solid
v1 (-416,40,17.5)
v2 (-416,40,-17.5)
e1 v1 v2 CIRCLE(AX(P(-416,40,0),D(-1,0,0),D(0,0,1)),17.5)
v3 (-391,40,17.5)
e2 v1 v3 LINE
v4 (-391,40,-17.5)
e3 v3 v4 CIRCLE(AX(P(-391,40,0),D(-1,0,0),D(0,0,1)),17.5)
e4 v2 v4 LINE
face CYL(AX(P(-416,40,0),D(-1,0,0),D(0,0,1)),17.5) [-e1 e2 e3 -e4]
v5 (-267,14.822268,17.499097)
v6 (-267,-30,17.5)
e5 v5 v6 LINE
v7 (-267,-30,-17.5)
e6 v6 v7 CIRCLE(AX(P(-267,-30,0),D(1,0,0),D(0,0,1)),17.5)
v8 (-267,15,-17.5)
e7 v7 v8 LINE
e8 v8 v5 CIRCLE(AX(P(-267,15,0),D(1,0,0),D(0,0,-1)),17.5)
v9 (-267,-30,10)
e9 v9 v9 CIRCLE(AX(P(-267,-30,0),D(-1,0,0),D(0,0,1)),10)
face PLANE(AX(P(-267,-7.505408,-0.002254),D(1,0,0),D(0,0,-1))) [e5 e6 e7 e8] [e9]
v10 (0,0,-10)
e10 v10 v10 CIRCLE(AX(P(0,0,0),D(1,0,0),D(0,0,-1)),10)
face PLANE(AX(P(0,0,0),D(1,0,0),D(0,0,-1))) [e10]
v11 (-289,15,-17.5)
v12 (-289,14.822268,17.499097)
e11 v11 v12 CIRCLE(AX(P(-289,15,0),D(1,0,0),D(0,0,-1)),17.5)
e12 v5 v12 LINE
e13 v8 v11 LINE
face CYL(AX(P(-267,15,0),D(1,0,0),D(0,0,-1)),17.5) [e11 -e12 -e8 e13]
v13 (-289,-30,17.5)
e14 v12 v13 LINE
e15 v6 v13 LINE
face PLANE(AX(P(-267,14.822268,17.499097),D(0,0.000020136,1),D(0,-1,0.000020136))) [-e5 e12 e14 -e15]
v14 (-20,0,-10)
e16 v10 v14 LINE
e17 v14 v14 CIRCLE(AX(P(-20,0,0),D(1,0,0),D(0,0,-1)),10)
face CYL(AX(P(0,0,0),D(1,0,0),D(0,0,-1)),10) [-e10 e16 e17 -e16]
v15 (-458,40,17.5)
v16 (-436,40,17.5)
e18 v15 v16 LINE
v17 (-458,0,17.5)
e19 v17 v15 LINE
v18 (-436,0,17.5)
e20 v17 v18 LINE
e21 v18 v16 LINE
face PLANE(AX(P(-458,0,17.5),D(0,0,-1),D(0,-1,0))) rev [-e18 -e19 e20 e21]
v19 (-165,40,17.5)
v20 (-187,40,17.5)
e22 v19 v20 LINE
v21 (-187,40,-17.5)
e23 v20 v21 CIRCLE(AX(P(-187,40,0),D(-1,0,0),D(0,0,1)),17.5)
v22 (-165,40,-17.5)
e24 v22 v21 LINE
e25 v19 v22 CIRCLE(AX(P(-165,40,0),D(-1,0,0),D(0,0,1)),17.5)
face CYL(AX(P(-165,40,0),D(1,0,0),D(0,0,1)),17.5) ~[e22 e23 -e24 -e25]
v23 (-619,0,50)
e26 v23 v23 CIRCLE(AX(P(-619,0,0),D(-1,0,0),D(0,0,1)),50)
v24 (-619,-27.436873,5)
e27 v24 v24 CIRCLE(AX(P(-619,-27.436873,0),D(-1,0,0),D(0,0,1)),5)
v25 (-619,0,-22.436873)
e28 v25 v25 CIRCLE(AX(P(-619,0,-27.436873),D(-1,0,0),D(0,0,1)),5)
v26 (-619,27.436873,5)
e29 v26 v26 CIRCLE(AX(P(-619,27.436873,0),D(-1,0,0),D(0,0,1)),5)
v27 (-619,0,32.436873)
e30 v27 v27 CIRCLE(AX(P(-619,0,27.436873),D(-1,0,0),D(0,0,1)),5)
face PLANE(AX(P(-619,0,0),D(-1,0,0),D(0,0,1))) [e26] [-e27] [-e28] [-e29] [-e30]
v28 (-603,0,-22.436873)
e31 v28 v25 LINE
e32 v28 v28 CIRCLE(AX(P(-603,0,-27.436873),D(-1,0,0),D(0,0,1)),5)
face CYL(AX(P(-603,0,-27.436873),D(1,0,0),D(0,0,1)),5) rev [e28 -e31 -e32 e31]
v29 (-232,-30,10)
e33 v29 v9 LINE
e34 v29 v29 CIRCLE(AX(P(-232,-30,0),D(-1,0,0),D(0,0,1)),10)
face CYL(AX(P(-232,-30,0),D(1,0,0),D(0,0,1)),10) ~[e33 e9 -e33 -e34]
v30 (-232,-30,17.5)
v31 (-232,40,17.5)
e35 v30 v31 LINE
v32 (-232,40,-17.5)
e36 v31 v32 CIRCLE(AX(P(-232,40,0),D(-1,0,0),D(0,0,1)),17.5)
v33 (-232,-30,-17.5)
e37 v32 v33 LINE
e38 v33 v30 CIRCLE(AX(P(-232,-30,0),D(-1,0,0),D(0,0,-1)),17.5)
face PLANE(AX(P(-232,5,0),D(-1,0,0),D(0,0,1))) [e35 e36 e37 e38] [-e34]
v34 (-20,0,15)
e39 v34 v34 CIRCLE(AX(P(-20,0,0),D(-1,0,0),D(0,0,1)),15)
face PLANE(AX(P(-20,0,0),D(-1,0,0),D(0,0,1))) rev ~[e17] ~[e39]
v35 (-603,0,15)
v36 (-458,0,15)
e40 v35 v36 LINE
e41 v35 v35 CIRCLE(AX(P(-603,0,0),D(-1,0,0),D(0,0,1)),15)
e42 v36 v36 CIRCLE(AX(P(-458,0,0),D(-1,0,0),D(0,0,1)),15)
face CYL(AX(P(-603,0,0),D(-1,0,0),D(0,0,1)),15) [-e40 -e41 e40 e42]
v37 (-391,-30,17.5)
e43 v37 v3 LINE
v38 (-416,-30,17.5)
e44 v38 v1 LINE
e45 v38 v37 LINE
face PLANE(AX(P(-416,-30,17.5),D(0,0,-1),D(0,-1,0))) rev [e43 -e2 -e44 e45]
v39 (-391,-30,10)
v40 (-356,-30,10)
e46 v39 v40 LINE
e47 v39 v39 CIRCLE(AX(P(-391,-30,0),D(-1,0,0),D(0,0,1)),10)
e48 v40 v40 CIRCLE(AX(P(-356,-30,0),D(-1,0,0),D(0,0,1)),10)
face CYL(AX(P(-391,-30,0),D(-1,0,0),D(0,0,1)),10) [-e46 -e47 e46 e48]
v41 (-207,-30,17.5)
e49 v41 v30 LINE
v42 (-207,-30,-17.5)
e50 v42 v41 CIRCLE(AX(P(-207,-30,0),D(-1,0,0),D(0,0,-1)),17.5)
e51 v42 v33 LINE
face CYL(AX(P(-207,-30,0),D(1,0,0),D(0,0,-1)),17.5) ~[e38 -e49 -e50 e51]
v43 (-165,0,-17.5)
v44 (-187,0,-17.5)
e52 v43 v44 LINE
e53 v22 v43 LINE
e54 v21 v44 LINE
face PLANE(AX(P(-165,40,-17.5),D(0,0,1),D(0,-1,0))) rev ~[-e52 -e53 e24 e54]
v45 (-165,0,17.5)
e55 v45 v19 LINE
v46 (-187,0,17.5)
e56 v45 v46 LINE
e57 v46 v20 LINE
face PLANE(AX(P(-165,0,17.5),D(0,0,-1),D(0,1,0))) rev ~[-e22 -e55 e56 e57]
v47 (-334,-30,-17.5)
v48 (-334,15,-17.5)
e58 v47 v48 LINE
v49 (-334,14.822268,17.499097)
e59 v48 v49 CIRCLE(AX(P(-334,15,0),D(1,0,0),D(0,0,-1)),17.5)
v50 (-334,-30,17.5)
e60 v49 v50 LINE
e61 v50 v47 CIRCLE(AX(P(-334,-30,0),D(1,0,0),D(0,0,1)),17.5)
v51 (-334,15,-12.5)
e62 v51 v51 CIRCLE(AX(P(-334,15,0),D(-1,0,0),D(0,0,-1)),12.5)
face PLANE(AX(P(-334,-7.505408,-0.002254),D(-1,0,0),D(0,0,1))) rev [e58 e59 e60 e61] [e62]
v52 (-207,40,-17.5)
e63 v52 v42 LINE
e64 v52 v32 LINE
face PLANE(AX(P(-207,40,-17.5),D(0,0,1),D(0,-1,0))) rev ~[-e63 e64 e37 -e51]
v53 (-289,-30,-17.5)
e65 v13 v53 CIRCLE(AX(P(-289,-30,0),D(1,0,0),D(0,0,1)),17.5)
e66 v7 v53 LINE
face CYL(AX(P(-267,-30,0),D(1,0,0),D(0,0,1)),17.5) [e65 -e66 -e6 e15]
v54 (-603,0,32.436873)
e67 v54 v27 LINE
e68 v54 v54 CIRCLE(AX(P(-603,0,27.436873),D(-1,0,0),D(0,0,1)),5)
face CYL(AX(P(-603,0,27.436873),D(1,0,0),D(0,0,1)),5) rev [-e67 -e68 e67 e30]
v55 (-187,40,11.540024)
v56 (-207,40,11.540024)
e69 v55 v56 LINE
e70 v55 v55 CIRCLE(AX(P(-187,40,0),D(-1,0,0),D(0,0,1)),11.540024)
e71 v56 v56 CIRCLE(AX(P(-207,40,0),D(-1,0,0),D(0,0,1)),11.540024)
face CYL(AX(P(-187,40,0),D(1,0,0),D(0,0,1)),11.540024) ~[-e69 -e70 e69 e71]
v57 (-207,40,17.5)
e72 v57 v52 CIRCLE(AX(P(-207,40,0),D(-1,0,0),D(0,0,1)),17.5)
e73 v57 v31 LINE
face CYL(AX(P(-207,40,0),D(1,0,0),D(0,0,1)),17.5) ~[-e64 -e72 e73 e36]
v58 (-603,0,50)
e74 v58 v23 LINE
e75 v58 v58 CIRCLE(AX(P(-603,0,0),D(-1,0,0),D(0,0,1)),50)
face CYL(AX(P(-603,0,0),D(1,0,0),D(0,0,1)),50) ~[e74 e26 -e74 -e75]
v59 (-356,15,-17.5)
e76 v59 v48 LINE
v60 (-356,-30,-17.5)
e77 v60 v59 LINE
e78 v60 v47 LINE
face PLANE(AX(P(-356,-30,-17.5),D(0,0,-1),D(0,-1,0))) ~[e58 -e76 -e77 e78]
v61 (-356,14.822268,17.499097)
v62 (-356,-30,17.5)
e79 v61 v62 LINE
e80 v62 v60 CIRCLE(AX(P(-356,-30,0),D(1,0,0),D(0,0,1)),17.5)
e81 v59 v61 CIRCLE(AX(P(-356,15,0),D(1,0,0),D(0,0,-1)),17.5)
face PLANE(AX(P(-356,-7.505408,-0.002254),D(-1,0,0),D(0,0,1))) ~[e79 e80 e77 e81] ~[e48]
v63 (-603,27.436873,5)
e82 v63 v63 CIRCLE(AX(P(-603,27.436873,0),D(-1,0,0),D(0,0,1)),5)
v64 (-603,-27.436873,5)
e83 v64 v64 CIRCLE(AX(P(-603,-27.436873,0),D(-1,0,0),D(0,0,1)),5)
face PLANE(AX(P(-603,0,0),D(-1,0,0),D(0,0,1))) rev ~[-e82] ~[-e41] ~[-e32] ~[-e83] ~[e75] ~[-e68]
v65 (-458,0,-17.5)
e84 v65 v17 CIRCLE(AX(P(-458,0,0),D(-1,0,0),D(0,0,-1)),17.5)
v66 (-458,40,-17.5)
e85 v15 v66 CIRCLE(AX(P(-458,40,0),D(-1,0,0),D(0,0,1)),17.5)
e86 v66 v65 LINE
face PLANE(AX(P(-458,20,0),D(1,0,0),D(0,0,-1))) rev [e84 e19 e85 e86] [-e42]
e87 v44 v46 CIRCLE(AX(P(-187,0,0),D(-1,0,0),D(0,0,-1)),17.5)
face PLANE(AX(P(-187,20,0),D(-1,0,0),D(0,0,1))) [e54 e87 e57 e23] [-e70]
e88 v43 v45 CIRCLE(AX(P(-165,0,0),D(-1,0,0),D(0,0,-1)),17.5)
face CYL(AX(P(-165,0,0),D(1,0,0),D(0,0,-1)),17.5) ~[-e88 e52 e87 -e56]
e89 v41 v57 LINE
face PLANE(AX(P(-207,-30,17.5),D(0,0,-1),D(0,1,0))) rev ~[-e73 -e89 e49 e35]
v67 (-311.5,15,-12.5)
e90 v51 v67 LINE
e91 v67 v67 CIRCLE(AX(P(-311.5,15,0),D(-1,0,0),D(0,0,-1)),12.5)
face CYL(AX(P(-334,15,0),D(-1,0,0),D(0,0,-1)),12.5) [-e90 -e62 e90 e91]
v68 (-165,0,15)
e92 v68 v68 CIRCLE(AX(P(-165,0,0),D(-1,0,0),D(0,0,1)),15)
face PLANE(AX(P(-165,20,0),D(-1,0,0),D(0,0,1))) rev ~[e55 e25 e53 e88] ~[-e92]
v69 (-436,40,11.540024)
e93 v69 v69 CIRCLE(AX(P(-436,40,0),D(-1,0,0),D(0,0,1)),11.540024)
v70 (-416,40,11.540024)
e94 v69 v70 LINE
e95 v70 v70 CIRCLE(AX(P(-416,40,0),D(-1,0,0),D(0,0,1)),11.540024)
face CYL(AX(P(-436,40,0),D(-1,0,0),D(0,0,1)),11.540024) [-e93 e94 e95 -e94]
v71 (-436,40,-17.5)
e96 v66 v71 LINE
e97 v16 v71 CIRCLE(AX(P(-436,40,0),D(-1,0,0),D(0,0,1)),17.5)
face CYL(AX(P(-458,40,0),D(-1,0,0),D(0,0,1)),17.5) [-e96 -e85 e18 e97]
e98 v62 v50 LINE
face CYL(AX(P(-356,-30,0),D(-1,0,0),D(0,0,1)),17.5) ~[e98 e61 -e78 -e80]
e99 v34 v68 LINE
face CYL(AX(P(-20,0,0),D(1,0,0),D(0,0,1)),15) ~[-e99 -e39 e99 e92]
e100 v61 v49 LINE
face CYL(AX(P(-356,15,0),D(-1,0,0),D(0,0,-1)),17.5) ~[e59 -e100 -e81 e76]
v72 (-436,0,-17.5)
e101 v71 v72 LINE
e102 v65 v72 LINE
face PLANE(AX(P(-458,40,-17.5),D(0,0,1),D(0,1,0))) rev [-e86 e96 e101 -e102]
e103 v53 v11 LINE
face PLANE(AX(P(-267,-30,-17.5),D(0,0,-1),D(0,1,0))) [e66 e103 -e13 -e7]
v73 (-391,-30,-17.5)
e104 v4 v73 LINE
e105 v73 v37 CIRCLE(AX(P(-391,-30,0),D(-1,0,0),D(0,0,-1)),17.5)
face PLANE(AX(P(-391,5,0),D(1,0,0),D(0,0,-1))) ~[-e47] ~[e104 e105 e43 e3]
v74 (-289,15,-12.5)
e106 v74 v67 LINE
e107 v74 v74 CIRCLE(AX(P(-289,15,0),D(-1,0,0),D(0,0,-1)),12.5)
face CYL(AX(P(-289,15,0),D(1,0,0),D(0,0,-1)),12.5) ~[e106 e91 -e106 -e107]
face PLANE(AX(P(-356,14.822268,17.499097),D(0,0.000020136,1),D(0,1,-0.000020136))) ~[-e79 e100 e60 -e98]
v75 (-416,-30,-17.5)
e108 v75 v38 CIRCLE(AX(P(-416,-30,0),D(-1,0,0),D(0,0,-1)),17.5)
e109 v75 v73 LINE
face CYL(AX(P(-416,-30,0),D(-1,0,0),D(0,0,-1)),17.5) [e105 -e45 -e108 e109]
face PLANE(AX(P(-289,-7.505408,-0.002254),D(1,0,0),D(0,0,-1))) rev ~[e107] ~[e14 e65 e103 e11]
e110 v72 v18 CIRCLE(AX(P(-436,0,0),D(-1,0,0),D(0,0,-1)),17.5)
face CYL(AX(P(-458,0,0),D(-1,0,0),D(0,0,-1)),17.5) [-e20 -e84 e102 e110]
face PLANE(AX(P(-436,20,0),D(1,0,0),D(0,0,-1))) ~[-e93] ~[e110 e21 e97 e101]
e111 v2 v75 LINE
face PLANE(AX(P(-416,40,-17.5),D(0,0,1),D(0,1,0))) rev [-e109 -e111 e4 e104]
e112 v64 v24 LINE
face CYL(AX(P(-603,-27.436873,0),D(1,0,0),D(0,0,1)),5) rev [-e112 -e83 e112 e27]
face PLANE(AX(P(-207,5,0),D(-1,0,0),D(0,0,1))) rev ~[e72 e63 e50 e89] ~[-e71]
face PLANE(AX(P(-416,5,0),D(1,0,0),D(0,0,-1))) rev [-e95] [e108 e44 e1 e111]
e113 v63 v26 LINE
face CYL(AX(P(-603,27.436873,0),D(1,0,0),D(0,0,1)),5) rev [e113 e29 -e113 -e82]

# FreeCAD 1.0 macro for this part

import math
import FreeCAD as App
import Part
import Sketcher
Q = App.Units.Quantity

doc = App.newDocument("Part")
body = doc.addObject("PartDesign::Body", "Body")

sketch1 = doc.addObject("Sketcher::SketchObject", "Sketch")
body.addObject(sketch1)
sketch1.AttachmentSupport = (doc.YZ_Plane, [""])
sketch1.MapMode = "FlatFace"
sketch1.addGeometry(Part.Circle(App.Vector(0, 0, 0), App.Vector(0, 0, 1), 10), False)
sketch1.addConstraint([
    Sketcher.Constraint("Coincident", 0, 3, -1, 1),
    Sketcher.Constraint("Diameter", 0, Q("20 mm")),
])
pad1 = doc.addObject("PartDesign::Pad", "Pad")
body.addObject(pad1)
pad1.Profile = sketch1
pad1.Length = 20
pad1.Reversed = True

sketch2 = doc.addObject("Sketcher::SketchObject", "Sketch001")
body.addObject(sketch2)
sketch2.AttachmentSupport = (doc.YZ_Plane, [""])
sketch2.MapMode = "FlatFace"
sketch2.AttachmentOffset = App.Placement(App.Vector(0, 0, -20), App.Rotation())
sketch2.addGeometry(Part.Circle(App.Vector(0, 0, 0), App.Vector(0, 0, 1), 15), False)
sketch2.addConstraint([
    Sketcher.Constraint("Coincident", 0, 3, -1, 1),
    Sketcher.Constraint("Diameter", 0, Q("30 mm")),
])
pad2 = doc.addObject("PartDesign::Pad", "Pad001")
body.addObject(pad2)
pad2.Profile = sketch2
pad2.Length = 145
pad2.Reversed = True

sketch3 = doc.addObject("Sketcher::SketchObject", "Sketch002")
body.addObject(sketch3)
sketch3.AttachmentSupport = (doc.YZ_Plane, [""])
sketch3.MapMode = "FlatFace"
sketch3.AttachmentOffset = App.Placement(App.Vector(0, 0, -165), App.Rotation())
sketch3.addGeometry([
    Part.LineSegment(App.Vector(40, -17.5, 0), App.Vector(0, -17.5, 0)),
    Part.ArcOfCircle(Part.Circle(App.Vector(0, 0, 0), App.Vector(0, 0, 1), 17.5), math.radians(90), math.radians(270)),
    Part.LineSegment(App.Vector(0, 17.5, 0), App.Vector(40, 17.5, 0)),
    Part.ArcOfCircle(Part.Circle(App.Vector(40, 0, 0), App.Vector(0, 0, 1), 17.5), math.radians(-90), math.radians(90)),
], False)
sketch3.addConstraint([
    Sketcher.Constraint("Tangent", 0, 2, 1, 2),
    Sketcher.Constraint("Tangent", 1, 1, 2, 1),
    Sketcher.Constraint("Tangent", 2, 2, 3, 2),
    Sketcher.Constraint("Tangent", 3, 1, 0, 1),
    Sketcher.Constraint("Horizontal", 0),
    Sketcher.Constraint("Horizontal", 2),
    Sketcher.Constraint("Coincident", 1, 3, -1, 1),
    Sketcher.Constraint("Radius", 1, Q("17.5 mm")),
    Sketcher.Constraint("DistanceX", 0, 2, 0, 1, Q("40 mm")),
])
pad3 = doc.addObject("PartDesign::Pad", "Pad002")
body.addObject(pad3)
pad3.Profile = sketch3
pad3.Length = 22
pad3.Reversed = True

sketch4 = doc.addObject("Sketcher::SketchObject", "Sketch003")
body.addObject(sketch4)
sketch4.AttachmentSupport = (doc.YZ_Plane, [""])
sketch4.MapMode = "FlatFace"
sketch4.AttachmentOffset = App.Placement(App.Vector(0, 0, -187), App.Rotation())
sketch4.addGeometry(Part.Circle(App.Vector(40, 0, 0), App.Vector(0, 0, 1), 11.540024), False)
sketch4.addConstraint([
    Sketcher.Constraint("PointOnObject", 0, 3, -1),
    Sketcher.Constraint("DistanceX", -1, 1, 0, 3, Q("40 mm")),
    Sketcher.Constraint("Diameter", 0, Q("23.080048 mm")),
])
pad4 = doc.addObject("PartDesign::Pad", "Pad003")
body.addObject(pad4)
pad4.Profile = sketch4
pad4.Length = 20
pad4.Reversed = True

sketch5 = doc.addObject("Sketcher::SketchObject", "Sketch004")
body.addObject(sketch5)
sketch5.AttachmentSupport = (doc.YZ_Plane, [""])
sketch5.MapMode = "FlatFace"
sketch5.AttachmentOffset = App.Placement(App.Vector(0, 0, -207), App.Rotation())
sketch5.addGeometry([
    Part.LineSegment(App.Vector(40, -17.5, 0), App.Vector(-30, -17.5, 0)),
    Part.ArcOfCircle(Part.Circle(App.Vector(-30, 0, 0), App.Vector(0, 0, 1), 17.5), math.radians(90), math.radians(270)),
    Part.LineSegment(App.Vector(-30, 17.5, 0), App.Vector(40, 17.5, 0)),
    Part.ArcOfCircle(Part.Circle(App.Vector(40, 0, 0), App.Vector(0, 0, 1), 17.5), math.radians(-90), math.radians(90)),
], False)
sketch5.addConstraint([
    Sketcher.Constraint("Tangent", 0, 2, 1, 2),
    Sketcher.Constraint("Tangent", 1, 1, 2, 1),
    Sketcher.Constraint("Tangent", 2, 2, 3, 2),
    Sketcher.Constraint("Tangent", 3, 1, 0, 1),
    Sketcher.Constraint("Horizontal", 0),
    Sketcher.Constraint("Horizontal", 2),
    Sketcher.Constraint("PointOnObject", 1, 3, -1),
    Sketcher.Constraint("Radius", 1, Q("17.5 mm")),
    Sketcher.Constraint("DistanceX", 0, 2, 0, 1, Q("70 mm")),
    Sketcher.Constraint("DistanceX", 1, 3, -1, 1, Q("30 mm")),
])
pad5 = doc.addObject("PartDesign::Pad", "Pad004")
body.addObject(pad5)
pad5.Profile = sketch5
pad5.Length = 25
pad5.Reversed = True

sketch6 = doc.addObject("Sketcher::SketchObject", "Sketch005")
body.addObject(sketch6)
sketch6.AttachmentSupport = (doc.YZ_Plane, [""])
sketch6.MapMode = "FlatFace"
sketch6.AttachmentOffset = App.Placement(App.Vector(0, 0, -232), App.Rotation())
sketch6.addGeometry(Part.Circle(App.Vector(-30, 0, 0), App.Vector(0, 0, 1), 10), False)
sketch6.addConstraint([
    Sketcher.Constraint("PointOnObject", 0, 3, -1),
    Sketcher.Constraint("Diameter", 0, Q("20 mm")),
    Sketcher.Constraint("DistanceX", 0, 3, -1, 1, Q("30 mm")),
])
pad6 = doc.addObject("PartDesign::Pad", "Pad005")
body.addObject(pad6)
pad6.Profile = sketch6
pad6.Length = 35
pad6.Reversed = True

sketch7 = doc.addObject("Sketcher::SketchObject", "Sketch006")
body.addObject(sketch7)
sketch7.AttachmentSupport = (doc.YZ_Plane, [""])
sketch7.MapMode = "FlatFace"
sketch7.AttachmentOffset = App.Placement(App.Vector(0, 0, -267), App.Rotation())
sketch7.addGeometry([
    Part.LineSegment(App.Vector(-30, 17.5, 0), App.Vector(14.822268, 17.499097, 0)),
    Part.ArcOfCircle(Part.Circle(App.Vector(15, 0, 0), App.Vector(0, 0, 1), 17.5), math.radians(-90), math.radians(90.581912)),
    Part.LineSegment(App.Vector(15, -17.5, 0), App.Vector(-30, -17.5, 0)),
    Part.ArcOfCircle(Part.Circle(App.Vector(-30, 0, 0), App.Vector(0, 0, 1), 17.5), math.radians(90), math.radians(270)),
], False)
sketch7.addConstraint([
    Sketcher.Constraint("Coincident", 0, 2, 1, 2),
    Sketcher.Constraint("Tangent", 1, 1, 2, 1),
    Sketcher.Constraint("Tangent", 2, 2, 3, 2),
    Sketcher.Constraint("Coincident", 3, 1, 0, 1),
    Sketcher.Constraint("Horizontal", 2),
    Sketcher.Constraint("Equal", 1, 3),
    Sketcher.Constraint("Symmetric", 2, 2, 3, 1, -1),
    Sketcher.Constraint("Radius", 1, Q("17.5 mm")),
    Sketcher.Constraint("DistanceX", 2, 2, 2, 1, Q("45 mm")),
    Sketcher.Constraint("DistanceX", -1, 1, 1, 3, Q("15 mm")),
    Sketcher.Constraint("Distance", 0, Q("44.822268 mm")),
])
pad7 = doc.addObject("PartDesign::Pad", "Pad006")
body.addObject(pad7)
pad7.Profile = sketch7
pad7.Length = 22
pad7.Reversed = True

sketch8 = doc.addObject("Sketcher::SketchObject", "Sketch007")
body.addObject(sketch8)
sketch8.AttachmentSupport = (doc.YZ_Plane, [""])
sketch8.MapMode = "FlatFace"
sketch8.AttachmentOffset = App.Placement(App.Vector(0, 0, -289), App.Rotation())
sketch8.addGeometry(Part.Circle(App.Vector(15, 0, 0), App.Vector(0, 0, 1), 12.5), False)
sketch8.addConstraint([
    Sketcher.Constraint("PointOnObject", 0, 3, -1),
    Sketcher.Constraint("Diameter", 0, Q("25 mm")),
    Sketcher.Constraint("DistanceX", -1, 1, 0, 3, Q("15 mm")),
])
pad8 = doc.addObject("PartDesign::Pad", "Pad007")
body.addObject(pad8)
pad8.Profile = sketch8
pad8.Length = 22.5
pad8.Reversed = True
doc.recompute()

datumplane = doc.addObject("PartDesign::Plane", "DatumPlane")
body.addObject(datumplane)
datumplane.AttachmentSupport = (doc.YZ_Plane, [""])
datumplane.MapMode = "FlatFace"
datumplane.AttachmentOffset = App.Placement(App.Vector(0, 0, -311.5), App.Rotation())
mirrored = doc.addObject("PartDesign::Mirrored", "Mirrored")
body.addObject(mirrored)
mirrored.Originals = [pad8]
mirrored.MirrorPlane = (datumplane, [""])
body.Tip = mirrored
doc.recompute()

datumplane2 = doc.addObject("PartDesign::Plane", "DatumPlane001")
body.addObject(datumplane2)
datumplane2.AttachmentSupport = (doc.YZ_Plane, [""])
datumplane2.MapMode = "FlatFace"
datumplane2.AttachmentOffset = App.Placement(App.Vector(0, 0, -311.5), App.Rotation())
mirrored2 = doc.addObject("PartDesign::Mirrored", "Mirrored001")
body.addObject(mirrored2)
mirrored2.Originals = [pad7]
mirrored2.MirrorPlane = (datumplane2, [""])
body.Tip = mirrored2
doc.recompute()

datumplane3 = doc.addObject("PartDesign::Plane", "DatumPlane002")
body.addObject(datumplane3)
datumplane3.AttachmentSupport = (doc.YZ_Plane, [""])
datumplane3.MapMode = "FlatFace"
datumplane3.AttachmentOffset = App.Placement(App.Vector(0, 0, -311.5), App.Rotation())
mirrored3 = doc.addObject("PartDesign::Mirrored", "Mirrored002")
body.addObject(mirrored3)
mirrored3.Originals = [pad6]
mirrored3.MirrorPlane = (datumplane3, [""])
body.Tip = mirrored3
doc.recompute()

datumplane4 = doc.addObject("PartDesign::Plane", "DatumPlane003")
body.addObject(datumplane4)
datumplane4.AttachmentSupport = (doc.YZ_Plane, [""])
datumplane4.MapMode = "FlatFace"
datumplane4.AttachmentOffset = App.Placement(App.Vector(0, 0, -311.5), App.Rotation())
mirrored4 = doc.addObject("PartDesign::Mirrored", "Mirrored003")
body.addObject(mirrored4)
mirrored4.Originals = [pad5]
mirrored4.MirrorPlane = (datumplane4, [""])
body.Tip = mirrored4
doc.recompute()

datumplane5 = doc.addObject("PartDesign::Plane", "DatumPlane004")
body.addObject(datumplane5)
datumplane5.AttachmentSupport = (doc.YZ_Plane, [""])
datumplane5.MapMode = "FlatFace"
datumplane5.AttachmentOffset = App.Placement(App.Vector(0, 0, -311.5), App.Rotation())
mirrored5 = doc.addObject("PartDesign::Mirrored", "Mirrored004")
body.addObject(mirrored5)
mirrored5.Originals = [pad4]
mirrored5.MirrorPlane = (datumplane5, [""])
body.Tip = mirrored5
doc.recompute()

datumplane6 = doc.addObject("PartDesign::Plane", "DatumPlane005")
body.addObject(datumplane6)
datumplane6.AttachmentSupport = (doc.YZ_Plane, [""])
datumplane6.MapMode = "FlatFace"
datumplane6.AttachmentOffset = App.Placement(App.Vector(0, 0, -311.5), App.Rotation())
mirrored6 = doc.addObject("PartDesign::Mirrored", "Mirrored005")
body.addObject(mirrored6)
mirrored6.Originals = [pad3]
mirrored6.MirrorPlane = (datumplane6, [""])
body.Tip = mirrored6
doc.recompute()

datumplane7 = doc.addObject("PartDesign::Plane", "DatumPlane006")
body.addObject(datumplane7)
datumplane7.AttachmentSupport = (doc.YZ_Plane, [""])
datumplane7.MapMode = "FlatFace"
datumplane7.AttachmentOffset = App.Placement(App.Vector(0, 0, -311.5), App.Rotation())
mirrored7 = doc.addObject("PartDesign::Mirrored", "Mirrored006")
body.addObject(mirrored7)
mirrored7.Originals = [pad2]
mirrored7.MirrorPlane = (datumplane7, [""])
body.Tip = mirrored7

sketch9 = doc.addObject("Sketcher::SketchObject", "Sketch008")
body.addObject(sketch9)
sketch9.AttachmentSupport = (doc.YZ_Plane, [""])
sketch9.MapMode = "FlatFace"
sketch9.AttachmentOffset = App.Placement(App.Vector(0, 0, -603), App.Rotation())
sketch9.addGeometry([
    Part.Circle(App.Vector(0, 0, 0), App.Vector(0, 0, 1), 50),
    Part.Circle(App.Vector(-27.436873, 0, 0), App.Vector(0, 0, 1), 5),
    Part.Circle(App.Vector(0, -27.436873, 0), App.Vector(0, 0, 1), 5),
    Part.Circle(App.Vector(0, 27.436873, 0), App.Vector(0, 0, 1), 5),
    Part.Circle(App.Vector(27.436873, 0, 0), App.Vector(0, 0, 1), 5),
], False)
sketch9.addConstraint([
    Sketcher.Constraint("Coincident", 0, 3, -1, 1),
    Sketcher.Constraint("Equal", 1, 2),
    Sketcher.Constraint("Equal", 2, 3),
    Sketcher.Constraint("Equal", 3, 4),
    Sketcher.Constraint("Symmetric", 2, 3, 3, 3, -1, 1),
    Sketcher.Constraint("Symmetric", 1, 3, 4, 3, -1, 1),
    Sketcher.Constraint("PointOnObject", 1, 3, -1),
    Sketcher.Constraint("PointOnObject", 2, 3, -2),
    Sketcher.Constraint("Diameter", 0, Q("100 mm")),
    Sketcher.Constraint("Diameter", 1, Q("10 mm")),
    Sketcher.Constraint("DistanceX", 1, 3, -1, 1, Q("27.436873 mm")),
    Sketcher.Constraint("DistanceY", 2, 3, -1, 1, Q("27.436873 mm")),
])
pad9 = doc.addObject("PartDesign::Pad", "Pad008")
body.addObject(pad9)
pad9.Profile = sketch9
pad9.Length = 16
pad9.Reversed = True

doc.recompute()
